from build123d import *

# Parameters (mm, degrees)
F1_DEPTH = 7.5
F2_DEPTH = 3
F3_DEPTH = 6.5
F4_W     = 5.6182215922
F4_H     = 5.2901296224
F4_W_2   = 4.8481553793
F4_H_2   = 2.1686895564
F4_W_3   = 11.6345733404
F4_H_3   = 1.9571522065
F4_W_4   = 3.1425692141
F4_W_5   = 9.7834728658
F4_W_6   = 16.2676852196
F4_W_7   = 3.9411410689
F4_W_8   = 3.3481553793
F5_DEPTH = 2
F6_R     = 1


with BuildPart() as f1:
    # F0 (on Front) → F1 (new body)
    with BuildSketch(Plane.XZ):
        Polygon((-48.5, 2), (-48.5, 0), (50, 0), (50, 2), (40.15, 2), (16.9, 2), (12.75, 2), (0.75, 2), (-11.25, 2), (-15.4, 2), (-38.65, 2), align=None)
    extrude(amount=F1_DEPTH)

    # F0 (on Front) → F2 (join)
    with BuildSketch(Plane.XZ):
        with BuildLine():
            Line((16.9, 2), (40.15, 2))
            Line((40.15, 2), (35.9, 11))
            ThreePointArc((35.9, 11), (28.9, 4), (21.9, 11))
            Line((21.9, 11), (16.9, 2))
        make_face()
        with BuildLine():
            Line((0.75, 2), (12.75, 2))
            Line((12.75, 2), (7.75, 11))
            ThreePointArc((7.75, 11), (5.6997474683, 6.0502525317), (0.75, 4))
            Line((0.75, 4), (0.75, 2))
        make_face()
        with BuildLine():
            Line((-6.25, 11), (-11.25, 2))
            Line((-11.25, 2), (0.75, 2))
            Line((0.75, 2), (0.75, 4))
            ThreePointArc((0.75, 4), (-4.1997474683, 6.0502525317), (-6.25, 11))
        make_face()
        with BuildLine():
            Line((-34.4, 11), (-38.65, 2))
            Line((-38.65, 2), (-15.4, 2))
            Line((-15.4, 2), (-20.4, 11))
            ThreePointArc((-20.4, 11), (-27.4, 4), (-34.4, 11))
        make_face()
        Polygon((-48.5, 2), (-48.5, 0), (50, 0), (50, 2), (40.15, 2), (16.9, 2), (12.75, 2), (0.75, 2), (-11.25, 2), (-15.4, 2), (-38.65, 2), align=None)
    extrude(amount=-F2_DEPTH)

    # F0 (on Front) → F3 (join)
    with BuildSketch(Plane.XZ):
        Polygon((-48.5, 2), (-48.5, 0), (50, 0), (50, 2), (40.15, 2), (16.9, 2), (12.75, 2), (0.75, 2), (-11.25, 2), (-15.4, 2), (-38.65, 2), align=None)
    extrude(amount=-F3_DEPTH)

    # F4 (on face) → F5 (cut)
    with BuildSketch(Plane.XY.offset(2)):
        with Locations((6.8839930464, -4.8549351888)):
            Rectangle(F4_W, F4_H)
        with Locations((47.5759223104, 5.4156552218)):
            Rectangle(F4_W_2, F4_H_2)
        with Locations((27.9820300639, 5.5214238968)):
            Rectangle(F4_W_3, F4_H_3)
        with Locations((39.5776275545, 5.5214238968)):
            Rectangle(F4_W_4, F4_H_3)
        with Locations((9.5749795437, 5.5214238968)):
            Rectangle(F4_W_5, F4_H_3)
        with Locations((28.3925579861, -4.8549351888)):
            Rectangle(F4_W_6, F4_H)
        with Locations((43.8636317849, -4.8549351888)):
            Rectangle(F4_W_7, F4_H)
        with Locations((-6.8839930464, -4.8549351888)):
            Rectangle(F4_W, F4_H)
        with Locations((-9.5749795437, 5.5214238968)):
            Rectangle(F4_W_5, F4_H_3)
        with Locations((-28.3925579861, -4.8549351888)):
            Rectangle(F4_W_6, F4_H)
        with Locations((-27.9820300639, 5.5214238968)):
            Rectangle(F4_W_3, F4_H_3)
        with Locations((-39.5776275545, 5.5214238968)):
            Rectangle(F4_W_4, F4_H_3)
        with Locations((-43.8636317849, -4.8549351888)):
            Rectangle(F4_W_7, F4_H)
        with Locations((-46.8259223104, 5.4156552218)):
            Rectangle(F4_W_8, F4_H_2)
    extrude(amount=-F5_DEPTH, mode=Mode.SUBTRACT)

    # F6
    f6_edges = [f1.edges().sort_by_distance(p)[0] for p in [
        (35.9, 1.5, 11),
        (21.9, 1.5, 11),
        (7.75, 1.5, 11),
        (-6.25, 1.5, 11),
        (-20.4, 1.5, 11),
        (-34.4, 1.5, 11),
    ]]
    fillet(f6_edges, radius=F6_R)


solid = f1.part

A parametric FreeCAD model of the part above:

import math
import FreeCAD as App
import Part
import Sketcher
Q = App.Units.Quantity


def edges_at(feature, points):
    """Names of the edges that pass closest to the given points."""
    edges = feature.Shape.Edges
    near = lambda p: min(range(len(edges)), key=lambda i: edges[i].distToShape(Part.Vertex(*p))[0])
    return sorted({f"Edge{near(p) + 1}" for p in points})

doc = App.newDocument("Part")
body = doc.addObject("PartDesign::Body", "Body")

# Sketch on XZ plane
sketch1 = body.newObject("Sketcher::SketchObject", "Sketch")
sketch1.AttachmentSupport = (doc.getObject("XZ_Plane"), [""])
sketch1.MapMode = "FlatFace"
sketch1.addGeometry([
    Part.LineSegment(App.Vector(-48.5, 2, 0), App.Vector(-48.5, 0, 0)),
    Part.LineSegment(App.Vector(-48.5, 0, 0), App.Vector(50, 0, 0)),
    Part.LineSegment(App.Vector(50, 0, 0), App.Vector(50, 2, 0)),
    Part.LineSegment(App.Vector(50, 2, 0), App.Vector(-48.5, 2, 0)),
], False)
sketch1.addConstraint([
    Sketcher.Constraint("Coincident", 0, 2, 1, 1),
    Sketcher.Constraint("Coincident", 1, 2, 2, 1),
    Sketcher.Constraint("Coincident", 2, 2, 3, 1),
    Sketcher.Constraint("Coincident", 3, 2, 0, 1),
    Sketcher.Constraint("Vertical", 0),
    Sketcher.Constraint("Horizontal", 1),
    Sketcher.Constraint("Vertical", 2),
    Sketcher.Constraint("Horizontal", 3),
    Sketcher.Constraint("PointOnObject", 0, 2, -1),
    Sketcher.Constraint("DistanceY", 0, 2, 0, 1, Q("2 mm")),
    Sketcher.Constraint("DistanceX", 1, 1, 1, 2, Q("98.5 mm")),
    Sketcher.Constraint("DistanceX", -1, 1, 1, 2, Q("50 mm")),
])
pad1 = body.newObject("PartDesign::Pad", "Pad")
pad1.Profile = sketch1
pad1.Length = 7.5

# Sketch on XZ plane
sketch2 = body.newObject("Sketcher::SketchObject", "Sketch001")
sketch2.AttachmentSupport = (doc.getObject("XZ_Plane"), [""])
sketch2.MapMode = "FlatFace"
sketch2.addGeometry([
    Part.LineSegment(App.Vector(40.1, 2, 0), App.Vector(35.9, 11, 0)),  # 0
    Part.ArcOfCircle(Part.Circle(App.Vector(28.9, 11, 0), App.Vector(0, 0, 1), 7), math.radians(180), math.radians(360)),  # 1
    Part.LineSegment(App.Vector(21.9, 11, 0), App.Vector(16.9, 2, 0)),  # 2
    Part.LineSegment(App.Vector(16.9, 2, 0), App.Vector(12.8, 2, 0)),  # 3
    Part.LineSegment(App.Vector(12.8, 2, 0), App.Vector(7.8, 11, 0)),  # 4
    Part.ArcOfCircle(Part.Circle(App.Vector(0.8, 11, 0), App.Vector(0, 0, 1), 7), math.radians(-90), math.radians(0)),  # 5
    Part.ArcOfCircle(Part.Circle(App.Vector(0.8, 11, 0), App.Vector(0, 0, 1), 7), math.radians(180), math.radians(270)),  # 6
    Part.LineSegment(App.Vector(-6.2, 11, 0), App.Vector(-11.2, 2, 0)),  # 7
    Part.LineSegment(App.Vector(-11.2, 2, 0), App.Vector(-15.4, 2, 0)),  # 8
    Part.LineSegment(App.Vector(-15.4, 2, 0), App.Vector(-20.4, 11, 0)),  # 9
    Part.ArcOfCircle(Part.Circle(App.Vector(-27.4, 11, 0), App.Vector(0, 0, 1), 7), math.radians(180), math.radians(360)),  # 10
    Part.LineSegment(App.Vector(-34.4, 11, 0), App.Vector(-38.6, 2, 0)),  # 11
    Part.LineSegment(App.Vector(-38.6, 2, 0), App.Vector(-48.5, 2, 0)),  # 12
    Part.LineSegment(App.Vector(-48.5, 2, 0), App.Vector(-48.5, 0, 0)),  # 13
    Part.LineSegment(App.Vector(-48.5, 0, 0), App.Vector(50, 0, 0)),  # 14
    Part.LineSegment(App.Vector(50, 0, 0), App.Vector(50, 2, 0)),  # 15
    Part.LineSegment(App.Vector(50, 2, 0), App.Vector(40.1, 2, 0)),  # 16
], False)
sketch2.addConstraint([
    Sketcher.Constraint("Coincident", 0, 2, 1, 2),
    Sketcher.Constraint("Coincident", 1, 1, 2, 1),
    Sketcher.Constraint("Coincident", 2, 2, 3, 1),
    Sketcher.Constraint("Coincident", 3, 2, 4, 1),
    Sketcher.Constraint("Coincident", 4, 2, 5, 2),
    Sketcher.Constraint("Tangent", 5, 1, 6, 2),
    Sketcher.Constraint("Coincident", 6, 1, 7, 1),
    Sketcher.Constraint("Coincident", 7, 2, 8, 1),
    Sketcher.Constraint("Coincident", 8, 2, 9, 1),
    Sketcher.Constraint("Coincident", 9, 2, 10, 2),
    Sketcher.Constraint("Coincident", 10, 1, 11, 1),
    Sketcher.Constraint("Coincident", 11, 2, 12, 1),
    Sketcher.Constraint("Coincident", 12, 2, 13, 1),
    Sketcher.Constraint("Coincident", 13, 2, 14, 1),
    Sketcher.Constraint("Coincident", 14, 2, 15, 1),
    Sketcher.Constraint("Coincident", 15, 2, 16, 1),
    Sketcher.Constraint("Coincident", 16, 2, 0, 1),
    Sketcher.Constraint("Horizontal", 3),
    Sketcher.Constraint("Horizontal", 8),
    Sketcher.Constraint("Horizontal", 12),
    Sketcher.Constraint("Vertical", 13),
    Sketcher.Constraint("Horizontal", 14),
    Sketcher.Constraint("Vertical", 15),
    Sketcher.Constraint("Horizontal", 16),
    Sketcher.Constraint("Equal", 1, 5),
    Sketcher.Constraint("Equal", 5, 6),
    Sketcher.Constraint("Equal", 6, 10),
    Sketcher.Constraint("PointOnObject", 13, 2, -1),
    Sketcher.Constraint("Parallel", 2, 7),
    Sketcher.Constraint("Parallel", 4, 9),
    Sketcher.Constraint("Horizontal", 1, 3, 5, 3),
    Sketcher.Constraint("Horizontal", 6, 3, 10, 3),
    Sketcher.Constraint("Horizontal", 10, 3, 0, 2),
    Sketcher.Constraint("Horizontal", 0, 2, 1, 1),
    Sketcher.Constraint("Horizontal", 1, 1, 4, 2),
    Sketcher.Constraint("Horizontal", 4, 2, 6, 1),
    Sketcher.Constraint("Horizontal", 3, 2, 7, 2),
    Sketcher.Constraint("Horizontal", 6, 1, 9, 2),
    Sketcher.Constraint("Horizontal", 9, 2, 10, 1),
    Sketcher.Constraint("Horizontal", 8, 2, 11, 2),
    Sketcher.Constraint("Horizontal", 12, 2, 15, 2),
    Sketcher.Constraint("Vertical", 6, 3, 5, 1),
    Sketcher.Constraint("Equal", 3, 8),
    Sketcher.Constraint("Equal", 12, 16),
    Sketcher.Constraint("Equal", 2, 4),
    Sketcher.Constraint("Equal", 0, 11),
    Sketcher.Constraint("Radius", 1, Q("7 mm")),
    Sketcher.Constraint("DistanceY", 13, 2, 13, 1, Q("2 mm")),
    Sketcher.Constraint("DistanceX", 14, 1, 14, 2, Q("98.5 mm")),
    Sketcher.Constraint("DistanceY", -1, 1, 1, 3, Q("11 mm")),
    Sketcher.Constraint("DistanceX", -1, 1, 14, 2, Q("50 mm")),
    Sketcher.Constraint("DistanceX", 2, 2, 1, 1, Q("5 mm")),
    Sketcher.Constraint("DistanceX", 3, 2, 3, 1, Q("4.15 mm")),
    Sketcher.Constraint("DistanceX", 12, 2, 12, 1, Q("9.85 mm")),
])
pad2 = body.newObject("PartDesign::Pad", "Pad001")
pad2.Profile = sketch2
pad2.Length = 3
pad2.Reversed = True

# Sketch on XZ plane
sketch3 = body.newObject("Sketcher::SketchObject", "Sketch002")
sketch3.AttachmentSupport = (doc.getObject("XZ_Plane"), [""])
sketch3.MapMode = "FlatFace"
sketch3.addGeometry([
    Part.LineSegment(App.Vector(-48.5, 2, 0), App.Vector(-48.5, 0, 0)),
    Part.LineSegment(App.Vector(-48.5, 0, 0), App.Vector(50, 0, 0)),
    Part.LineSegment(App.Vector(50, 0, 0), App.Vector(50, 2, 0)),
    Part.LineSegment(App.Vector(50, 2, 0), App.Vector(-48.5, 2, 0)),
], False)
sketch3.addConstraint([
    Sketcher.Constraint("Coincident", 0, 2, 1, 1),
    Sketcher.Constraint("Coincident", 1, 2, 2, 1),
    Sketcher.Constraint("Coincident", 2, 2, 3, 1),
    Sketcher.Constraint("Coincident", 3, 2, 0, 1),
    Sketcher.Constraint("Vertical", 0),
    Sketcher.Constraint("Horizontal", 1),
    Sketcher.Constraint("Vertical", 2),
    Sketcher.Constraint("Horizontal", 3),
    Sketcher.Constraint("PointOnObject", 0, 2, -1),
    Sketcher.Constraint("DistanceY", 0, 2, 0, 1, Q("2 mm")),
    Sketcher.Constraint("DistanceX", 1, 1, 1, 2, Q("98.5 mm")),
    Sketcher.Constraint("DistanceX", -1, 1, 1, 2, Q("50 mm")),
])
pad3 = body.newObject("PartDesign::Pad", "Pad002")
pad3.Profile = sketch3
pad3.Length = 6.5
pad3.Reversed = True

# Sketch on XY plane
sketch4 = body.newObject("Sketcher::SketchObject", "Sketch003")
sketch4.AttachmentSupport = (doc.getObject("XY_Plane"), [""])
sketch4.MapMode = "FlatFace"
sketch4.AttachmentOffset = App.Placement(App.Vector(0, 0, 2), App.Rotation())
sketch4.addGeometry([
    Part.LineSegment(App.Vector(4.1, -2.2, 0), App.Vector(4.1, -7.5, 0)),  # 0
    Part.LineSegment(App.Vector(4.1, -7.5, 0), App.Vector(9.7, -7.5, 0)),  # 1
    Part.LineSegment(App.Vector(9.7, -7.5, 0), App.Vector(9.7, -2.2, 0)),  # 2
    Part.LineSegment(App.Vector(9.7, -2.2, 0), App.Vector(4.1, -2.2, 0)),  # 3
    Part.LineSegment(App.Vector(45.2, 6.5, 0), App.Vector(45.2, 4.3, 0)),  # 4
    Part.LineSegment(App.Vector(45.2, 4.3, 0), App.Vector(50, 4.3, 0)),  # 5
    Part.LineSegment(App.Vector(50, 4.3, 0), App.Vector(50, 6.5, 0)),  # 6
    Part.LineSegment(App.Vector(50, 6.5, 0), App.Vector(45.2, 6.5, 0)),  # 7
    Part.LineSegment(App.Vector(22.2, 6.5, 0), App.Vector(22.2, 4.5, 0)),  # 8
    Part.LineSegment(App.Vector(22.2, 4.5, 0), App.Vector(33.8, 4.5, 0)),  # 9
    Part.LineSegment(App.Vector(33.8, 4.5, 0), App.Vector(33.8, 6.5, 0)),  # 10
    Part.LineSegment(App.Vector(33.8, 6.5, 0), App.Vector(22.2, 6.5, 0)),  # 11
    Part.LineSegment(App.Vector(38, 6.5, 0), App.Vector(38, 4.5, 0)),  # 12
    Part.LineSegment(App.Vector(38, 4.5, 0), App.Vector(41.1, 4.5, 0)),  # 13
    Part.LineSegment(App.Vector(41.1, 4.5, 0), App.Vector(41.1, 6.5, 0)),  # 14
    Part.LineSegment(App.Vector(41.1, 6.5, 0), App.Vector(38, 6.5, 0)),  # 15
    Part.LineSegment(App.Vector(4.7, 6.5, 0), App.Vector(4.7, 4.5, 0)),  # 16
    Part.LineSegment(App.Vector(4.7, 4.5, 0), App.Vector(14.5, 4.5, 0)),  # 17
    Part.LineSegment(App.Vector(14.5, 4.5, 0), App.Vector(14.5, 6.5, 0)),  # 18
    Part.LineSegment(App.Vector(14.5, 6.5, 0), App.Vector(4.7, 6.5, 0)),  # 19
    Part.LineSegment(App.Vector(20.3, -2.2, 0), App.Vector(20.3, -7.5, 0)),  # 20
    Part.LineSegment(App.Vector(20.3, -7.5, 0), App.Vector(36.5, -7.5, 0)),  # 21
    Part.LineSegment(App.Vector(36.5, -7.5, 0), App.Vector(36.5, -2.2, 0)),  # 22
    Part.LineSegment(App.Vector(36.5, -2.2, 0), App.Vector(20.3, -2.2, 0)),  # 23
    Part.LineSegment(App.Vector(41.9, -2.2, 0), App.Vector(41.9, -7.5, 0)),  # 24
    Part.LineSegment(App.Vector(41.9, -7.5, 0), App.Vector(45.8, -7.5, 0)),  # 25
    Part.LineSegment(App.Vector(45.8, -7.5, 0), App.Vector(45.8, -2.2, 0)),  # 26
    Part.LineSegment(App.Vector(45.8, -2.2, 0), App.Vector(41.9, -2.2, 0)),  # 27
    Part.LineSegment(App.Vector(-9.7, -2.2, 0), App.Vector(-9.7, -7.5, 0)),  # 28
    Part.LineSegment(App.Vector(-9.7, -7.5, 0), App.Vector(-4.1, -7.5, 0)),  # 29
    Part.LineSegment(App.Vector(-4.1, -7.5, 0), App.Vector(-4.1, -2.2, 0)),  # 30
    Part.LineSegment(App.Vector(-4.1, -2.2, 0), App.Vector(-9.7, -2.2, 0)),  # 31
    Part.LineSegment(App.Vector(-14.5, 6.5, 0), App.Vector(-14.5, 4.5, 0)),  # 32
    Part.LineSegment(App.Vector(-14.5, 4.5, 0), App.Vector(-4.7, 4.5, 0)),  # 33
    Part.LineSegment(App.Vector(-4.7, 4.5, 0), App.Vector(-4.7, 6.5, 0)),  # 34
    Part.LineSegment(App.Vector(-4.7, 6.5, 0), App.Vector(-14.5, 6.5, 0)),  # 35
    Part.LineSegment(App.Vector(-36.5, -2.2, 0), App.Vector(-36.5, -7.5, 0)),  # 36
    Part.LineSegment(App.Vector(-36.5, -7.5, 0), App.Vector(-20.3, -7.5, 0)),  # 37
    Part.LineSegment(App.Vector(-20.3, -7.5, 0), App.Vector(-20.3, -2.2, 0)),  # 38
    Part.LineSegment(App.Vector(-20.3, -2.2, 0), App.Vector(-36.5, -2.2, 0)),  # 39
    Part.LineSegment(App.Vector(-33.8, 6.5, 0), App.Vector(-33.8, 4.5, 0)),  # 40
    Part.LineSegment(App.Vector(-33.8, 4.5, 0), App.Vector(-22.2, 4.5, 0)),  # 41
    Part.LineSegment(App.Vector(-22.2, 4.5, 0), App.Vector(-22.2, 6.5, 0)),  # 42
    Part.LineSegment(App.Vector(-22.2, 6.5, 0), App.Vector(-33.8, 6.5, 0)),  # 43
    Part.LineSegment(App.Vector(-41.1, 6.5, 0), App.Vector(-41.1, 4.5, 0)),  # 44
    Part.LineSegment(App.Vector(-41.1, 4.5, 0), App.Vector(-38, 4.5, 0)),  # 45
    Part.LineSegment(App.Vector(-38, 4.5, 0), App.Vector(-38, 6.5, 0)),  # 46
    Part.LineSegment(App.Vector(-38, 6.5, 0), App.Vector(-41.1, 6.5, 0)),  # 47
    Part.LineSegment(App.Vector(-45.8, -2.2, 0), App.Vector(-45.8, -7.5, 0)),  # 48
    Part.LineSegment(App.Vector(-45.8, -7.5, 0), App.Vector(-41.9, -7.5, 0)),  # 49
    Part.LineSegment(App.Vector(-41.9, -7.5, 0), App.Vector(-41.9, -2.2, 0)),  # 50
    Part.LineSegment(App.Vector(-41.9, -2.2, 0), App.Vector(-45.8, -2.2, 0)),  # 51
    Part.LineSegment(App.Vector(-48.5, 6.5, 0), App.Vector(-48.5, 4.3, 0)),  # 52
    Part.LineSegment(App.Vector(-48.5, 4.3, 0), App.Vector(-45.2, 4.3, 0)),  # 53
    Part.LineSegment(App.Vector(-45.2, 4.3, 0), App.Vector(-45.2, 6.5, 0)),  # 54
    Part.LineSegment(App.Vector(-45.2, 6.5, 0), App.Vector(-48.5, 6.5, 0)),  # 55
], False)
sketch4.addConstraint([
    Sketcher.Constraint("Coincident", 0, 2, 1, 1),
    Sketcher.Constraint("Coincident", 1, 2, 2, 1),
    Sketcher.Constraint("Coincident", 2, 2, 3, 1),
    Sketcher.Constraint("Coincident", 3, 2, 0, 1),
    Sketcher.Constraint("Coincident", 4, 2, 5, 1),
    Sketcher.Constraint("Coincident", 5, 2, 6, 1),
    Sketcher.Constraint("Coincident", 6, 2, 7, 1),
    Sketcher.Constraint("Coincident", 7, 2, 4, 1),
    Sketcher.Constraint("Coincident", 8, 2, 9, 1),
    Sketcher.Constraint("Coincident", 9, 2, 10, 1),
    Sketcher.Constraint("Coincident", 10, 2, 11, 1),
    Sketcher.Constraint("Coincident", 11, 2, 8, 1),
    Sketcher.Constraint("Coincident", 12, 2, 13, 1),
    Sketcher.Constraint("Coincident", 13, 2, 14, 1),
    Sketcher.Constraint("Coincident", 14, 2, 15, 1),
    Sketcher.Constraint("Coincident", 15, 2, 12, 1),
    Sketcher.Constraint("Coincident", 16, 2, 17, 1),
    Sketcher.Constraint("Coincident", 17, 2, 18, 1),
    Sketcher.Constraint("Coincident", 18, 2, 19, 1),
    Sketcher.Constraint("Coincident", 19, 2, 16, 1),
    Sketcher.Constraint("Coincident", 20, 2, 21, 1),
    Sketcher.Constraint("Coincident", 21, 2, 22, 1),
    Sketcher.Constraint("Coincident", 22, 2, 23, 1),
    Sketcher.Constraint("Coincident", 23, 2, 20, 1),
    Sketcher.Constraint("Coincident", 24, 2, 25, 1),
    Sketcher.Constraint("Coincident", 25, 2, 26, 1),
    Sketcher.Constraint("Coincident", 26, 2, 27, 1),
    Sketcher.Constraint("Coincident", 27, 2, 24, 1),
    Sketcher.Constraint("Coincident", 28, 2, 29, 1),
    Sketcher.Constraint("Coincident", 29, 2, 30, 1),
    Sketcher.Constraint("Coincident", 30, 2, 31, 1),
    Sketcher.Constraint("Coincident", 31, 2, 28, 1),
    Sketcher.Constraint("Coincident", 32, 2, 33, 1),
    Sketcher.Constraint("Coincident", 33, 2, 34, 1),
    Sketcher.Constraint("Coincident", 34, 2, 35, 1),
    Sketcher.Constraint("Coincident", 35, 2, 32, 1),
    Sketcher.Constraint("Coincident", 36, 2, 37, 1),
    Sketcher.Constraint("Coincident", 37, 2, 38, 1),
    Sketcher.Constraint("Coincident", 38, 2, 39, 1),
    Sketcher.Constraint("Coincident", 39, 2, 36, 1),
    Sketcher.Constraint("Coincident", 40, 2, 41, 1),
    Sketcher.Constraint("Coincident", 41, 2, 42, 1),
    Sketcher.Constraint("Coincident", 42, 2, 43, 1),
    Sketcher.Constraint("Coincident", 43, 2, 40, 1),
    Sketcher.Constraint("Coincident", 44, 2, 45, 1),
    Sketcher.Constraint("Coincident", 45, 2, 46, 1),
    Sketcher.Constraint("Coincident", 46, 2, 47, 1),
    Sketcher.Constraint("Coincident", 47, 2, 44, 1),
    Sketcher.Constraint("Coincident", 48, 2, 49, 1),
    Sketcher.Constraint("Coincident", 49, 2, 50, 1),
    Sketcher.Constraint("Coincident", 50, 2, 51, 1),
    Sketcher.Constraint("Coincident", 51, 2, 48, 1),
    Sketcher.Constraint("Coincident", 52, 2, 53, 1),
    Sketcher.Constraint("Coincident", 53, 2, 54, 1),
    Sketcher.Constraint("Coincident", 54, 2, 55, 1),
    Sketcher.Constraint("Coincident", 55, 2, 52, 1),
    Sketcher.Constraint("Vertical", 0),
    Sketcher.Constraint("Horizontal", 1),
    Sketcher.Constraint("Vertical", 2),
    Sketcher.Constraint("Horizontal", 3),
    Sketcher.Constraint("Vertical", 4),
    Sketcher.Constraint("Horizontal", 5),
    Sketcher.Constraint("Vertical", 6),
    Sketcher.Constraint("Horizontal", 7),
    Sketcher.Constraint("Vertical", 8),
    Sketcher.Constraint("Horizontal", 9),
    Sketcher.Constraint("Vertical", 10),
    Sketcher.Constraint("Horizontal", 11),
    Sketcher.Constraint("Vertical", 12),
    Sketcher.Constraint("Horizontal", 13),
    Sketcher.Constraint("Vertical", 14),
    Sketcher.Constraint("Horizontal", 15),
    Sketcher.Constraint("Vertical", 16),
    Sketcher.Constraint("Horizontal", 17),
    Sketcher.Constraint("Vertical", 18),
    Sketcher.Constraint("Horizontal", 19),
    Sketcher.Constraint("Vertical", 20),
    Sketcher.Constraint("Horizontal", 21),
    Sketcher.Constraint("Vertical", 22),
    Sketcher.Constraint("Horizontal", 23),
    Sketcher.Constraint("Vertical", 24),
    Sketcher.Constraint("Horizontal", 25),
    Sketcher.Constraint("Vertical", 26),
    Sketcher.Constraint("Horizontal", 27),
    Sketcher.Constraint("Vertical", 28),
    Sketcher.Constraint("Horizontal", 29),
    Sketcher.Constraint("Vertical", 30),
    Sketcher.Constraint("Horizontal", 31),
    Sketcher.Constraint("Vertical", 32),
    Sketcher.Constraint("Horizontal", 33),
    Sketcher.Constraint("Vertical", 34),
    Sketcher.Constraint("Horizontal", 35),
    Sketcher.Constraint("Vertical", 36),
    Sketcher.Constraint("Horizontal", 37),
    Sketcher.Constraint("Vertical", 38),
    Sketcher.Constraint("Horizontal", 39),
    Sketcher.Constraint("Vertical", 40),
    Sketcher.Constraint("Horizontal", 41),
    Sketcher.Constraint("Vertical", 42),
    Sketcher.Constraint("Horizontal", 43),
    Sketcher.Constraint("Vertical", 44),
    Sketcher.Constraint("Horizontal", 45),
    Sketcher.Constraint("Vertical", 46),
    Sketcher.Constraint("Horizontal", 47),
    Sketcher.Constraint("Vertical", 48),
    Sketcher.Constraint("Horizontal", 49),
    Sketcher.Constraint("Vertical", 50),
    Sketcher.Constraint("Horizontal", 51),
    Sketcher.Constraint("Vertical", 52),
    Sketcher.Constraint("Horizontal", 53),
    Sketcher.Constraint("Vertical", 54),
    Sketcher.Constraint("Horizontal", 55),
    Sketcher.Constraint("Symmetric", 1, 2, 28, 2, -2),
    Sketcher.Constraint("Symmetric", 3, 2, 30, 2, -2),
    Sketcher.Constraint("Symmetric", 17, 2, 32, 2, -2),
    Sketcher.Constraint("Symmetric", 19, 2, 34, 2, -2),
    Sketcher.Constraint("Symmetric", 21, 2, 36, 2, -2),
    Sketcher.Constraint("Symmetric", 23, 2, 38, 2, -2),
    Sketcher.Constraint("Symmetric", 9, 2, 40, 2, -2),
    Sketcher.Constraint("Symmetric", 11, 2, 42, 2, -2),
    Sketcher.Constraint("Symmetric", 13, 2, 44, 2, -2),
    Sketcher.Constraint("Symmetric", 15, 2, 46, 2, -2),
    Sketcher.Constraint("Symmetric", 25, 2, 48, 2, -2),
    Sketcher.Constraint("Symmetric", 27, 2, 50, 2, -2),
    Sketcher.Constraint("Symmetric", 4, 2, 53, 2, -2),
    Sketcher.Constraint("Horizontal", 7, 2, 10, 2),
    Sketcher.Constraint("Horizontal", 9, 2, 12, 2),
    Sketcher.Constraint("Horizontal", 11, 2, 14, 2),
    Sketcher.Constraint("Horizontal", 13, 2, 16, 2),
    Sketcher.Constraint("Horizontal", 15, 2, 18, 2),
    Sketcher.Constraint("Horizontal", 1, 2, 20, 2),
    Sketcher.Constraint("Horizontal", 3, 2, 22, 2),
    Sketcher.Constraint("Horizontal", 21, 2, 24, 2),
    Sketcher.Constraint("Horizontal", 23, 2, 26, 2),
    Sketcher.Constraint("Horizontal", 47, 2, 54, 2),
    Sketcher.Constraint("DistanceX", -1, 1, 5, 2, Q("50 mm")),
    Sketcher.Constraint("DistanceY", 1, 2, 6, 2, Q("14 mm")),
    Sketcher.Constraint("DistanceY", 0, 2, -1, 1, Q("7.5 mm")),
    Sketcher.Constraint("DistanceX", 52, 2, -1, 1, Q("48.5 mm")),
    Sketcher.Constraint("DistanceX", 17, 2, 20, 2, Q("5.791999 mm")),
    Sketcher.Constraint("DistanceX", 1, 1, 1, 2, Q("5.618222 mm")),
    Sketcher.Constraint("DistanceX", 13, 1, 13, 2, Q("3.142569 mm")),
    Sketcher.Constraint("DistanceX", 25, 1, 25, 2, Q("3.941141 mm")),
    Sketcher.Constraint("DistanceY", 0, 2, 0, 1, Q("5.29013 mm")),
    Sketcher.Constraint("DistanceY", 4, 2, 4, 1, Q("2.16869 mm")),
    Sketcher.Constraint("DistanceX", -1, 1, 21, 2, Q("36.526401 mm")),
    Sketcher.Constraint("DistanceX", 8, 2, 4, 2, Q("22.987101 mm")),
    Sketcher.Constraint("DistanceX", 12, 2, 4, 2, Q("7.145502 mm")),
    Sketcher.Constraint("DistanceX", 16, 2, 8, 2, Q("17.4815 mm")),
    Sketcher.Constraint("DistanceX", 21, 2, 25, 2, Q("9.307802 mm")),
    Sketcher.Constraint("DistanceX", 40, 2, 38, 2, Q("13.540601 mm")),
    Sketcher.Constraint("DistanceX", 5, 1, 5, 2, Q("4.848155 mm")),
    Sketcher.Constraint("DistanceX", 9, 1, 9, 2, Q("11.634573 mm")),
    Sketcher.Constraint("DistanceY", 8, 2, 8, 1, Q("1.957152 mm")),
    Sketcher.Constraint("DistanceX", 2, 2, 4, 2, Q("35.458741 mm")),
])
pocket1 = body.newObject("PartDesign::Pocket", "Pocket")
pocket1.Profile = sketch4
pocket1.Length = 2
doc.recompute()

fillet = body.newObject("PartDesign::Fillet", "Fillet")
fillet.Base = (pocket1, edges_at(pocket1, [
    (35.9, 1.5, 11),
    (21.9, 1.5, 11),
    (7.75, 1.5, 11),
    (-6.25, 1.5, 11),
    (-20.4, 1.5, 11),
    (-34.4, 1.5, 11),
]))
fillet.Radius = 1

doc.recompute()
